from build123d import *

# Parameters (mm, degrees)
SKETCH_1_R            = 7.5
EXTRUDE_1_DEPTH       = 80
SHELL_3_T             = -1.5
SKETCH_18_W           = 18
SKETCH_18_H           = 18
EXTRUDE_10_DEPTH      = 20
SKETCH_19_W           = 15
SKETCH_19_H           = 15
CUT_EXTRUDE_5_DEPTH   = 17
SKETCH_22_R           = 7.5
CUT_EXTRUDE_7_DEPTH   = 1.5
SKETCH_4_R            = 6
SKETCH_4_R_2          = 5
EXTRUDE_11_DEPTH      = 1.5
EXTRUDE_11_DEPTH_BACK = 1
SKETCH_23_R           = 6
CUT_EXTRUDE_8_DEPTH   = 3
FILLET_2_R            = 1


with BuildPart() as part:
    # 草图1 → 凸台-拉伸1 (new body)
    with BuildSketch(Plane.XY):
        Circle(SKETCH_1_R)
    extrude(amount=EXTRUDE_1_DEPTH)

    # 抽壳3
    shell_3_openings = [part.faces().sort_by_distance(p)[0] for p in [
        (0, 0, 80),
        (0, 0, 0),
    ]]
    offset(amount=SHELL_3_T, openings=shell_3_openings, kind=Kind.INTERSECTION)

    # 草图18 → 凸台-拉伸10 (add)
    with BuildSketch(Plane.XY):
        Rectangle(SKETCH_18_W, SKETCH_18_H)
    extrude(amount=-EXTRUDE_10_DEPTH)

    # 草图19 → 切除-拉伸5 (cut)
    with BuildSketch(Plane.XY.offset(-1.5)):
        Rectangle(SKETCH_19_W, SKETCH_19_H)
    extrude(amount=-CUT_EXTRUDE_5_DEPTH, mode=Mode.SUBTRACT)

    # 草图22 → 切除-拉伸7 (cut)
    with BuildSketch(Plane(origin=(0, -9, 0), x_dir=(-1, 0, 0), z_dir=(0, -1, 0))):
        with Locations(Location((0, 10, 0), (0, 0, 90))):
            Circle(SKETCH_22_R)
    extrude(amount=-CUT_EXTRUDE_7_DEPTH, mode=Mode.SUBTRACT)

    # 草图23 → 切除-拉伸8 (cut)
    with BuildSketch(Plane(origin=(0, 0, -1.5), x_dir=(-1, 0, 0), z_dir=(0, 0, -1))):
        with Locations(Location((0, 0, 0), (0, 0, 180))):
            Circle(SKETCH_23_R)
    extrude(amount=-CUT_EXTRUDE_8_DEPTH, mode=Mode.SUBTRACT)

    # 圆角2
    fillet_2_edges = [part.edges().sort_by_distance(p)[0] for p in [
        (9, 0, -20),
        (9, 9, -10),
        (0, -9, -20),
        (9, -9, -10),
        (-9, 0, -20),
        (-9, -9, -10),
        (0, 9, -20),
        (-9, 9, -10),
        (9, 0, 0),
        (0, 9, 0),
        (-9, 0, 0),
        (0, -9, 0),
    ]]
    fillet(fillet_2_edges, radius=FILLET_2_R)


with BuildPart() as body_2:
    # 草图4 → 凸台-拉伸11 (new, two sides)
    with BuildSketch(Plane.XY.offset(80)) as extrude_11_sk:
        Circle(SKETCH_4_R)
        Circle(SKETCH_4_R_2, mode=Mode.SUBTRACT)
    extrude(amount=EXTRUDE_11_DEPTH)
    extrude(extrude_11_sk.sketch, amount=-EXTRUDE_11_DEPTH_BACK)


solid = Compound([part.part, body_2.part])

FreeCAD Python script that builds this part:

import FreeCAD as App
import Part
import Sketcher

V = App.Vector


def edges_at(feature, points):
    """Names of the edges that pass closest to the given points."""
    edges = feature.Shape.Edges
    near = lambda p: min(range(len(edges)), key=lambda i: edges[i].distToShape(Part.Vertex(*p))[0])
    return sorted({f"Edge{near(p) + 1}" for p in points})


def faces_at(feature, points):
    """Names of the faces that lie closest to the given points."""
    faces = feature.Shape.Faces
    near = lambda p: min(range(len(faces)), key=lambda i: faces[i].distToShape(Part.Vertex(*p))[0])
    return sorted({f"Face{near(p) + 1}" for p in points})

doc = App.newDocument("Part")
body = doc.addObject("PartDesign::Body", "Body")

sketch1 = doc.addObject("Sketcher::SketchObject", "Sketch")
body.addObject(sketch1)
sketch1.AttachmentSupport = (doc.XY_Plane, [""])
sketch1.MapMode = "FlatFace"
sketch1.addGeometry(Part.Circle(V(0, 0, 0), V(0, 0, 1), 8), False)
sketch1.addConstraint([
    Sketcher.Constraint("Coincident", 0, 3, -1, 1),
    Sketcher.Constraint("Diameter", 0, 15.0),
])
pad1 = doc.addObject("PartDesign::Pad", "Pad")
body.addObject(pad1)
pad1.Profile = sketch1
pad1.Length = 80
doc.recompute()

thickness = doc.addObject("PartDesign::Thickness", "Thickness")
body.addObject(thickness)
thickness.Base = (pad1, faces_at(pad1, [(0, 0, 80), (0, 0, 0)]))
thickness.Value = 1.5
thickness.Reversed = True
thickness.Join = "Intersection"

sketch2 = doc.addObject("Sketcher::SketchObject", "Sketch001")
body.addObject(sketch2)
sketch2.AttachmentSupport = (doc.XY_Plane, [""])
sketch2.MapMode = "FlatFace"
sketch2.addGeometry([
    Part.LineSegment(V(-9, 9, 0), V(-9, -9, 0)),
    Part.LineSegment(V(-9, -9, 0), V(9, -9, 0)),
    Part.LineSegment(V(9, -9, 0), V(9, 9, 0)),
    Part.LineSegment(V(9, 9, 0), V(-9, 9, 0)),
], False)
sketch2.addConstraint([
    Sketcher.Constraint("Coincident", 0, 2, 1, 1),
    Sketcher.Constraint("Coincident", 1, 2, 2, 1),
    Sketcher.Constraint("Coincident", 2, 2, 3, 1),
    Sketcher.Constraint("Coincident", 3, 2, 0, 1),
    Sketcher.Constraint("Vertical", 0),
    Sketcher.Constraint("Horizontal", 1),
    Sketcher.Constraint("Vertical", 2),
    Sketcher.Constraint("Horizontal", 3),
    Sketcher.Constraint("Symmetric", 0, 2, 2, 2, -1, 1),
    Sketcher.Constraint("Equal", 3, 0),
    Sketcher.Constraint("DistanceX", 1, 1, 1, 2, 18.0),
])
pad2 = doc.addObject("PartDesign::Pad", "Pad001")
body.addObject(pad2)
pad2.Profile = sketch2
pad2.Length = 20
pad2.Reversed = True

sketch3 = doc.addObject("Sketcher::SketchObject", "Sketch002")
body.addObject(sketch3)
sketch3.AttachmentSupport = (doc.XY_Plane, [""])
sketch3.MapMode = "FlatFace"
sketch3.AttachmentOffset = App.Placement(V(0, 0, -1.5), App.Rotation())
sketch3.addGeometry([
    Part.LineSegment(V(-8, 8, 0), V(-8, -8, 0)),
    Part.LineSegment(V(-8, -8, 0), V(8, -8, 0)),
    Part.LineSegment(V(8, -8, 0), V(8, 8, 0)),
    Part.LineSegment(V(8, 8, 0), V(-8, 8, 0)),
], False)
sketch3.addConstraint([
    Sketcher.Constraint("Coincident", 0, 2, 1, 1),
    Sketcher.Constraint("Coincident", 1, 2, 2, 1),
    Sketcher.Constraint("Coincident", 2, 2, 3, 1),
    Sketcher.Constraint("Coincident", 3, 2, 0, 1),
    Sketcher.Constraint("Vertical", 0),
    Sketcher.Constraint("Horizontal", 1),
    Sketcher.Constraint("Vertical", 2),
    Sketcher.Constraint("Horizontal", 3),
    Sketcher.Constraint("Symmetric", 0, 2, 2, 2, -1, 1),
    Sketcher.Constraint("Equal", 3, 0),
    Sketcher.Constraint("DistanceX", 1, 1, 1, 2, 15.0),
])
pocket1 = doc.addObject("PartDesign::Pocket", "Pocket")
body.addObject(pocket1)
pocket1.Profile = sketch3
pocket1.Length = 17

sketch4 = doc.addObject("Sketcher::SketchObject", "Sketch003")
body.addObject(sketch4)
sketch4.AttachmentSupport = (doc.XZ_Plane, [""])
sketch4.MapMode = "FlatFace"
sketch4.AttachmentOffset = App.Placement(V(0, 0, 9), App.Rotation())
sketch4.addGeometry(Part.Circle(V(0, -10, 0), V(0, 0, 1), 8), False)
sketch4.addConstraint([
    Sketcher.Constraint("PointOnObject", 0, 3, -2),
    Sketcher.Constraint("Diameter", 0, 15.0),
    Sketcher.Constraint("DistanceY", 0, 3, -1, 1, 10.0),
])
pocket2 = doc.addObject("PartDesign::Pocket", "Pocket001")
body.addObject(pocket2)
pocket2.Profile = sketch4
pocket2.Length = 1.5

sketch5 = doc.addObject("Sketcher::SketchObject", "Sketch004")
body.addObject(sketch5)
sketch5.AttachmentSupport = (doc.XY_Plane, [""])
sketch5.MapMode = "FlatFace"
sketch5.AttachmentOffset = App.Placement(V(0, 0, -1.5), App.Rotation())
sketch5.addGeometry(Part.Circle(V(0, 0, 0), V(0, 0, 1), 6), False)
sketch5.addConstraint([
    Sketcher.Constraint("Coincident", 0, 3, -1, 1),
    Sketcher.Constraint("Diameter", 0, 12.0),
])
pocket3 = doc.addObject("PartDesign::Pocket", "Pocket002")
body.addObject(pocket3)
pocket3.Profile = sketch5
pocket3.Length = 3
pocket3.Reversed = True
doc.recompute()

fillet = doc.addObject("PartDesign::Fillet", "Fillet")
body.addObject(fillet)
fillet.Base = (pocket3, edges_at(pocket3, [
    (9, 0, -20),
    (9, 9, -10),
    (0, -9, -20),
    (9, -9, -10),
    (-9, 0, -20),
    (-9, -9, -10),
    (0, 9, -20),
    (-9, 9, -10),
    (9, 0, 0),
    (0, 9, 0),
    (-9, 0, 0),
    (0, -9, 0),
]))
fillet.Radius = 1
body2 = doc.addObject("PartDesign::Body", "Body001")

sketch6 = doc.addObject("Sketcher::SketchObject", "Sketch005")
body2.addObject(sketch6)
sketch6.AttachmentSupport = (doc.getObject("XY_Plane001"), [""])
sketch6.MapMode = "FlatFace"
sketch6.AttachmentOffset = App.Placement(V(0, 0, 80), App.Rotation())
sketch6.addGeometry([
    Part.Circle(V(0, 0, 0), V(0, 0, 1), 6),
    Part.Circle(V(0, 0, 0), V(0, 0, 1), 5),
], False)
sketch6.addConstraint([
    Sketcher.Constraint("Coincident", 0, 3, -1, 1),
    Sketcher.Constraint("Coincident", 1, 3, -1, 1),
    Sketcher.Constraint("Diameter", 0, 12.0),
    Sketcher.Constraint("Diameter", 1, 10.0),
])
pad3 = doc.addObject("PartDesign::Pad", "Pad002")
body2.addObject(pad3)
pad3.Profile = sketch6
pad3.Type = "TwoLengths"
pad3.Length = 1.5
pad3.Length2 = 1

doc.recompute()
